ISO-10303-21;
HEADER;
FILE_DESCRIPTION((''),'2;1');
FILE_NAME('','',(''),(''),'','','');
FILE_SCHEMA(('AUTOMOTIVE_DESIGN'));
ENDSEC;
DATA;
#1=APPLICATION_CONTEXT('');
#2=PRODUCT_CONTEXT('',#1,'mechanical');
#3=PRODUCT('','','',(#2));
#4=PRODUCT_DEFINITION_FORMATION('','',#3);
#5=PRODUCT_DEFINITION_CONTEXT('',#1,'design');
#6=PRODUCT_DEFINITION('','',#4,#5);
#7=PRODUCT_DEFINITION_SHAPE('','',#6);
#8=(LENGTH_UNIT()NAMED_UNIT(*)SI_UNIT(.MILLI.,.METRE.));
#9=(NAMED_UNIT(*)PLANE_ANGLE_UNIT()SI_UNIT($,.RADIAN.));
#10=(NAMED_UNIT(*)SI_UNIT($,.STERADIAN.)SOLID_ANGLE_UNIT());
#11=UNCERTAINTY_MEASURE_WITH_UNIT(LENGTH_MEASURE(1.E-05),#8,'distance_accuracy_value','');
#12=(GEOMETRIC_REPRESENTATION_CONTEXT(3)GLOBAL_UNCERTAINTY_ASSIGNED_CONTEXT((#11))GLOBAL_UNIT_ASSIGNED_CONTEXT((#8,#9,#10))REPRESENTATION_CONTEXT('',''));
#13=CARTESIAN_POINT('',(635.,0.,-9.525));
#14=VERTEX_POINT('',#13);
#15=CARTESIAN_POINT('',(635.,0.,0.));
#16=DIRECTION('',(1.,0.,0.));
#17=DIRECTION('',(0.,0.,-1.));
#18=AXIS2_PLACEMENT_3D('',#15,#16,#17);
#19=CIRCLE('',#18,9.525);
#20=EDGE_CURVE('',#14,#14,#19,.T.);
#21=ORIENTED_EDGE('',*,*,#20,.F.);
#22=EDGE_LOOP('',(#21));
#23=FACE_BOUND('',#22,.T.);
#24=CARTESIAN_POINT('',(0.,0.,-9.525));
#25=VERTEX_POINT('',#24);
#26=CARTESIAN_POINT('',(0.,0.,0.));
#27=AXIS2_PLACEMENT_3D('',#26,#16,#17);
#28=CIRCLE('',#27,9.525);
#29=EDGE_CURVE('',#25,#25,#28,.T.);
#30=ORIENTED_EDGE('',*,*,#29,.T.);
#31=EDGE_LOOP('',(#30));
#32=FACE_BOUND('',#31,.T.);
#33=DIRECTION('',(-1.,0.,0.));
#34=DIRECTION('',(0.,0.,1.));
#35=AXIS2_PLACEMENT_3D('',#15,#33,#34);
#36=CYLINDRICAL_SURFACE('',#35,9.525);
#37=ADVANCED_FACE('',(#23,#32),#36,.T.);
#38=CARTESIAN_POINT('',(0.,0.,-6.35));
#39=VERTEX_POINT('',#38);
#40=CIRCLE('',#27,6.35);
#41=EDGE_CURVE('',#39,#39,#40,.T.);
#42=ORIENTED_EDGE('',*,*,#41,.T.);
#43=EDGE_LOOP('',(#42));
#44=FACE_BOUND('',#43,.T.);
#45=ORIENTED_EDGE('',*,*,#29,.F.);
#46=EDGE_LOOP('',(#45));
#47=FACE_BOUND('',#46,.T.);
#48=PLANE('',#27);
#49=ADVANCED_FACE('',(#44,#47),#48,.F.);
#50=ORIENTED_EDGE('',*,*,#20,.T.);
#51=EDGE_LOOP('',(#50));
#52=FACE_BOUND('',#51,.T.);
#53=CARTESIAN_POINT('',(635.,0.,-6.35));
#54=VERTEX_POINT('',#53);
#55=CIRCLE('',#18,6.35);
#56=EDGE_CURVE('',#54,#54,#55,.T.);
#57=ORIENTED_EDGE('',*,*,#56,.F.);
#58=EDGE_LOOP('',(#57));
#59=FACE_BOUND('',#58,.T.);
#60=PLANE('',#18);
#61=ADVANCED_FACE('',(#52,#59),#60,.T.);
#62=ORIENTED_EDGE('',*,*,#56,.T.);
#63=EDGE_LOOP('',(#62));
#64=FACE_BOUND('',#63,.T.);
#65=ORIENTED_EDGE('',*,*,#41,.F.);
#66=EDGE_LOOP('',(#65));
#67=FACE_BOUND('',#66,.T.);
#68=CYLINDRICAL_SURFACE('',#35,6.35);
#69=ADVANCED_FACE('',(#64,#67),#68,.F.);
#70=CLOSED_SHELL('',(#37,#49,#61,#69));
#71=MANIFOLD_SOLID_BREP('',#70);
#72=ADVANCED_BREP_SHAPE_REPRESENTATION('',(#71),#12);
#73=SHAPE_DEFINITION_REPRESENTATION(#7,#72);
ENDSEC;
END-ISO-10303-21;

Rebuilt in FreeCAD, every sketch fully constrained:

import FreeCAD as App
import Part
import Sketcher

V = App.Vector
Q = App.Units.Quantity

doc = App.newDocument("Part")
body = doc.addObject("PartDesign::Body", "Body")

sketch1 = body.newObject("Sketcher::SketchObject", "Sketch")
sketch1.AttachmentSupport = (doc.getObject("YZ_Plane"), [""])
sketch1.MapMode = "FlatFace"
sketch1.addGeometry([
    Part.Circle(V(0, 0, 0), V(0, 0, 1), 9.525),
    Part.Circle(V(0, 0, 0), V(0, 0, 1), 6.35),
], False)
sketch1.addConstraint([
    Sketcher.Constraint("Coincident", 0, 3, -1, 1),
    Sketcher.Constraint("Coincident", 1, 3, -1, 1),
    Sketcher.Constraint("Diameter", 1, Q("0.5 in")),
    Sketcher.Constraint("Diameter", 0, Q("0.75 in")),
])
pad1 = body.newObject("PartDesign::Pad", "Pad")
pad1.Profile = sketch1
pad1.Length = Q("25 in")

doc.recompute()
